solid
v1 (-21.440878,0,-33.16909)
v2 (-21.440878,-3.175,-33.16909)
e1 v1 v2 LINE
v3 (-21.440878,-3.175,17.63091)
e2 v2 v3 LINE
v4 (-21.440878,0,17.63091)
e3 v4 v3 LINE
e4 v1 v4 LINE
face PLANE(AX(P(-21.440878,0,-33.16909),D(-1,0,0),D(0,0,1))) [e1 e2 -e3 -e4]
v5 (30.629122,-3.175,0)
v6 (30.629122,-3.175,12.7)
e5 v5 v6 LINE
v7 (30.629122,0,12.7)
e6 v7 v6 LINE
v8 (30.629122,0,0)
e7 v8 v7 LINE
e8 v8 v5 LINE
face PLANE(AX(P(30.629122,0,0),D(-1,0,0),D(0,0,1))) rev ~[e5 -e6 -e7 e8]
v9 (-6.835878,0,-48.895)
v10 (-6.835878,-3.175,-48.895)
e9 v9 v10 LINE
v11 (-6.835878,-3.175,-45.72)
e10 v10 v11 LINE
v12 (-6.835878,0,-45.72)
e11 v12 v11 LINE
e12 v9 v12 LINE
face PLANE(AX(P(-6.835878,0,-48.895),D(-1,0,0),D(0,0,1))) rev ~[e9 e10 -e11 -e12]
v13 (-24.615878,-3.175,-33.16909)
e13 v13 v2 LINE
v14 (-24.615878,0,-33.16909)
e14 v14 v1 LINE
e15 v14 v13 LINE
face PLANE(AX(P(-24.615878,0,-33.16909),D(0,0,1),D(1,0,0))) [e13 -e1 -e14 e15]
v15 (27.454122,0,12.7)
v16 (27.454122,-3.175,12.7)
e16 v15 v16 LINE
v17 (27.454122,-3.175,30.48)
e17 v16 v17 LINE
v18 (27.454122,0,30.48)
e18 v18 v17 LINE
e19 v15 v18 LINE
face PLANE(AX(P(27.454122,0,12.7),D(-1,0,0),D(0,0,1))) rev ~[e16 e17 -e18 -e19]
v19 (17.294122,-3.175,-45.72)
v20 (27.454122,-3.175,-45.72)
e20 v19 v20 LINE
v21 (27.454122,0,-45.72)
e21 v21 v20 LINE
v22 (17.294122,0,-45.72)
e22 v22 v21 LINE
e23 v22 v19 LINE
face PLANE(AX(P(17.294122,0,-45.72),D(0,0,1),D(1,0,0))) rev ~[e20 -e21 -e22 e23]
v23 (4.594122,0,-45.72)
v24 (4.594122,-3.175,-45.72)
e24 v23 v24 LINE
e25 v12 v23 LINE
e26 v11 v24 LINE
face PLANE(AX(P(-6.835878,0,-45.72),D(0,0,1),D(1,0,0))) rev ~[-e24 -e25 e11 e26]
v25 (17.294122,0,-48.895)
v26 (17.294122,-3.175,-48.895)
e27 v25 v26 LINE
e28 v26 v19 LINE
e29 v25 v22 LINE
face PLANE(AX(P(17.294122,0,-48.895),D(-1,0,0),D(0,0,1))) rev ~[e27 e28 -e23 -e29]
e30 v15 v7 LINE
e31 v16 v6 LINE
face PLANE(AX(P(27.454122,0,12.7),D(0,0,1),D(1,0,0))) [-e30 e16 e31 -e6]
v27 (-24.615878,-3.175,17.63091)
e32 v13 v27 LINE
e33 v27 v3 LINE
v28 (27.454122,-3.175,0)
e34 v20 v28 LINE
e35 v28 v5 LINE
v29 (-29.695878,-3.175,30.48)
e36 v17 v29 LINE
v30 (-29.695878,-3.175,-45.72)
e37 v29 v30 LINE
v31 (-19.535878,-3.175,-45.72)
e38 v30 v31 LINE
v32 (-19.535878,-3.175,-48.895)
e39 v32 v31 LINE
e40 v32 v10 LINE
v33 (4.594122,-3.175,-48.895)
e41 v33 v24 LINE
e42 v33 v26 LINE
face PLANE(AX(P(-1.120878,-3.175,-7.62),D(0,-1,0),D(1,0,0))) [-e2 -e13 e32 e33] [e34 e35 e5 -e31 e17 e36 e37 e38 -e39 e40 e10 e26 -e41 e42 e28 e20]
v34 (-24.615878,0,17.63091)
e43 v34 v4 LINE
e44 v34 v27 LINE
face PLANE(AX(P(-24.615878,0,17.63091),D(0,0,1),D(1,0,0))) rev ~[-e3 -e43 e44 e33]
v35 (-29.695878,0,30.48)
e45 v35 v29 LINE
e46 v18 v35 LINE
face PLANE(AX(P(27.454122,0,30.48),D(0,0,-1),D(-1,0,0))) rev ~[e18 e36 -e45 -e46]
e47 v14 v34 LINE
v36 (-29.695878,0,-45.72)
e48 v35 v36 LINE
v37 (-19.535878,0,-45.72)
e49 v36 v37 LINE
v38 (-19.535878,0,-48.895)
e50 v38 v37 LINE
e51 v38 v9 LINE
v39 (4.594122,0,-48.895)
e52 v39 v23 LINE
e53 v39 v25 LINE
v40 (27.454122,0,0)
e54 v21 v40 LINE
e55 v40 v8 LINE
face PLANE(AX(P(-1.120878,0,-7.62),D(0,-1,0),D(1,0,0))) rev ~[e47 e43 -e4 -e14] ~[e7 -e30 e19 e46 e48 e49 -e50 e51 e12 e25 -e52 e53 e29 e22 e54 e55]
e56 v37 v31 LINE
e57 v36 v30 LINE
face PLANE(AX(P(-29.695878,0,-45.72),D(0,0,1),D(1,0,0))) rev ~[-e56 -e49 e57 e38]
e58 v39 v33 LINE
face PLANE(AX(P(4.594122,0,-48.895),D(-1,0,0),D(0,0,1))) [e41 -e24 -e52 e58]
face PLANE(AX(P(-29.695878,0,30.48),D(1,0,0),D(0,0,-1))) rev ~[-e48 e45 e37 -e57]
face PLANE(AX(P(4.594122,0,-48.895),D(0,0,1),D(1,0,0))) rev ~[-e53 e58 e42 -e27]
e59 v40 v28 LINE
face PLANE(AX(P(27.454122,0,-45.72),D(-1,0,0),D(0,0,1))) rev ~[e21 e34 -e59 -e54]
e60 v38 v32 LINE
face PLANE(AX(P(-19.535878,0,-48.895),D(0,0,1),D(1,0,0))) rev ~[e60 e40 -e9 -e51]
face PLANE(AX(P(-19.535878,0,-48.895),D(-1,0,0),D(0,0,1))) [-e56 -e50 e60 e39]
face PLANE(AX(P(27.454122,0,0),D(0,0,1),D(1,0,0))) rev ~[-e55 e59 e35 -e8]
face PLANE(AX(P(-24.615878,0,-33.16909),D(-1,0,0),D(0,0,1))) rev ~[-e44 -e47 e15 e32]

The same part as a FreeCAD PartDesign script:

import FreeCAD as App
import Part
import Sketcher

V = App.Vector
Q = App.Units.Quantity

doc = App.newDocument("Part")
body = doc.addObject("PartDesign::Body", "Body")

# Sketch on XZ plane
sketch1 = body.newObject("Sketcher::SketchObject", "Sketch")
sketch1.AttachmentSupport = (doc.getObject("XZ_Plane"), [""])
sketch1.MapMode = "FlatFace"
sketch1.addGeometry([
    Part.LineSegment(V(27.5, 30.5, 0), V(-29.7, 30.5, 0)),  # 0
    Part.LineSegment(V(-29.7, 30.5, 0), V(-29.7, -45.7, 0)),  # 1
    Part.LineSegment(V(-29.7, -45.7, 0), V(-19.5, -45.7, 0)),  # 2
    Part.LineSegment(V(-19.5, -45.7, 0), V(-19.5, -48.9, 0)),  # 3
    Part.LineSegment(V(-19.5, -48.9, 0), V(-6.8, -48.9, 0)),  # 4
    Part.LineSegment(V(-6.8, -48.9, 0), V(-6.8, -45.7, 0)),  # 5
    Part.LineSegment(V(-6.8, -45.7, 0), V(4.6, -45.7, 0)),  # 6
    Part.LineSegment(V(4.6, -45.7, 0), V(4.6, -48.9, 0)),  # 7
    Part.LineSegment(V(4.6, -48.9, 0), V(17.3, -48.9, 0)),  # 8
    Part.LineSegment(V(17.3, -48.9, 0), V(17.3, -45.7, 0)),  # 9
    Part.LineSegment(V(17.3, -45.7, 0), V(27.5, -45.7, 0)),  # 10
    Part.LineSegment(V(27.5, -45.7, 0), V(27.5, 0, 0)),  # 11
    Part.LineSegment(V(27.5, 0, 0), V(30.6, 0, 0)),  # 12
    Part.LineSegment(V(30.6, 0, 0), V(30.6, 12.7, 0)),  # 13
    Part.LineSegment(V(30.6, 12.7, 0), V(27.5, 12.7, 0)),  # 14
    Part.LineSegment(V(27.5, 12.7, 0), V(27.5, 30.5, 0)),  # 15
    Part.LineSegment(V(-21.4, -33.2, 0), V(-24.6, -33.2, 0)),  # 16
    Part.LineSegment(V(-24.6, -33.2, 0), V(-24.6, 17.6, 0)),  # 17
    Part.LineSegment(V(-24.6, 17.6, 0), V(-21.4, 17.6, 0)),  # 18
    Part.LineSegment(V(-21.4, 17.6, 0), V(-21.4, -33.2, 0)),  # 19
], False)
sketch1.addConstraint([
    Sketcher.Constraint("Coincident", 0, 2, 1, 1),
    Sketcher.Constraint("Coincident", 1, 2, 2, 1),
    Sketcher.Constraint("Coincident", 2, 2, 3, 1),
    Sketcher.Constraint("Coincident", 3, 2, 4, 1),
    Sketcher.Constraint("Coincident", 4, 2, 5, 1),
    Sketcher.Constraint("Coincident", 5, 2, 6, 1),
    Sketcher.Constraint("Coincident", 6, 2, 7, 1),
    Sketcher.Constraint("Coincident", 7, 2, 8, 1),
    Sketcher.Constraint("Coincident", 8, 2, 9, 1),
    Sketcher.Constraint("Coincident", 9, 2, 10, 1),
    Sketcher.Constraint("Coincident", 10, 2, 11, 1),
    Sketcher.Constraint("Coincident", 11, 2, 12, 1),
    Sketcher.Constraint("Coincident", 12, 2, 13, 1),
    Sketcher.Constraint("Coincident", 13, 2, 14, 1),
    Sketcher.Constraint("Coincident", 14, 2, 15, 1),
    Sketcher.Constraint("Coincident", 15, 2, 0, 1),
    Sketcher.Constraint("Coincident", 16, 2, 17, 1),
    Sketcher.Constraint("Coincident", 17, 2, 18, 1),
    Sketcher.Constraint("Coincident", 18, 2, 19, 1),
    Sketcher.Constraint("Coincident", 19, 2, 16, 1),
    Sketcher.Constraint("Horizontal", 0),
    Sketcher.Constraint("Vertical", 1),
    Sketcher.Constraint("Horizontal", 2),
    Sketcher.Constraint("Vertical", 3),
    Sketcher.Constraint("Horizontal", 4),
    Sketcher.Constraint("Vertical", 5),
    Sketcher.Constraint("Horizontal", 6),
    Sketcher.Constraint("Vertical", 7),
    Sketcher.Constraint("Horizontal", 8),
    Sketcher.Constraint("Vertical", 9),
    Sketcher.Constraint("Horizontal", 10),
    Sketcher.Constraint("Vertical", 11),
    Sketcher.Constraint("Horizontal", 12),
    Sketcher.Constraint("Vertical", 13),
    Sketcher.Constraint("Horizontal", 14),
    Sketcher.Constraint("Vertical", 15),
    Sketcher.Constraint("Horizontal", 16),
    Sketcher.Constraint("Vertical", 17),
    Sketcher.Constraint("Horizontal", 18),
    Sketcher.Constraint("Vertical", 19),
    Sketcher.Constraint("PointOnObject", 11, 2, -1),
    Sketcher.Constraint("Horizontal", 2, 2, 5, 2),
    Sketcher.Constraint("Horizontal", 4, 2, 7, 2),
    Sketcher.Constraint("Horizontal", 6, 2, 9, 2),
    Sketcher.Constraint("Vertical", 11, 2, 14, 2),
    Sketcher.Constraint("Equal", 4, 8),
    Sketcher.Constraint("Equal", 2, 10),
    Sketcher.Constraint("Equal", 14, 16),
    Sketcher.Constraint("Equal", 18, 3),
    Sketcher.Constraint("Equal", 8, 13),
    Sketcher.Constraint("DistanceY", 1, 2, 1, 1, Q("3 in")),
    Sketcher.Constraint("DistanceY", 17, 1, 17, 2, Q("2 in")),
    Sketcher.Constraint("DistanceX", 2, 1, 2, 2, Q("0.4 in")),
    Sketcher.Constraint("DistanceX", 4, 1, 4, 2, Q("0.5 in")),
    Sketcher.Constraint("DistanceY", 11, 1, 11, 2, Q("1.8 in")),
    Sketcher.Constraint("DistanceX", 0, 2, 0, 1, Q("2.25 in")),
    Sketcher.Constraint("DistanceX", 16, 2, 2, 2, Q("0.2 in")),
    Sketcher.Constraint("DistanceX", 12, 1, 12, 2, Q("0.125 in")),
    Sketcher.Constraint("DistanceX", 0, 2, -1, 1, Q("29.695878 mm")),
    Sketcher.Constraint("DistanceY", 16, 2, -1, 1, Q("33.16909 mm")),
])
pad1 = body.newObject("PartDesign::Pad", "Pad")
pad1.Profile = sketch1
pad1.Length = Q("0.125 in")

doc.recompute()
